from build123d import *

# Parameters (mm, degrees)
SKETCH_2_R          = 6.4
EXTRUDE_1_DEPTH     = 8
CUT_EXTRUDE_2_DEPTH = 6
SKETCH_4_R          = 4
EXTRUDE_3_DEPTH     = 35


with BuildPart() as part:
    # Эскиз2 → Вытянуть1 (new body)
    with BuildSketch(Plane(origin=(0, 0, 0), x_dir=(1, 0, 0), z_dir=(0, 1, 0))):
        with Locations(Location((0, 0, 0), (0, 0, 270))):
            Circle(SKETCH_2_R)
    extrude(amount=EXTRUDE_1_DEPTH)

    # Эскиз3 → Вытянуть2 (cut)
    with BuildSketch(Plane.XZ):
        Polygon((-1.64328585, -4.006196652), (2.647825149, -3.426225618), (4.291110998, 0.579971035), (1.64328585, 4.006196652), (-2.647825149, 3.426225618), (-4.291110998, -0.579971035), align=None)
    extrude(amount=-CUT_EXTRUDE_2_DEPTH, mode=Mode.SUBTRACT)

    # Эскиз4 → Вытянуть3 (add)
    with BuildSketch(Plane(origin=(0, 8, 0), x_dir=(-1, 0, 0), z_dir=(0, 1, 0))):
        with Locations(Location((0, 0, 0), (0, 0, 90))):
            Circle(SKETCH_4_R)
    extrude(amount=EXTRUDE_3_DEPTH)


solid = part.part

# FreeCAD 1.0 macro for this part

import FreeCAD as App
import Part
import Sketcher
Q = App.Units.Quantity

doc = App.newDocument("Part")
body = doc.addObject("PartDesign::Body", "Body")

# Sketch on XZ plane
sketch1 = body.newObject("Sketcher::SketchObject", "Sketch")
sketch1.AttachmentSupport = (doc.getObject("XZ_Plane"), [""])
sketch1.MapMode = "FlatFace"
sketch1.addGeometry(Part.Circle(App.Vector(0, 0, 0), App.Vector(0, 0, 1), 6), False)
sketch1.addConstraint([
    Sketcher.Constraint("Coincident", 0, 3, -1, 1),
    Sketcher.Constraint("Diameter", 0, Q("12.8 mm")),
])
pad1 = body.newObject("PartDesign::Pad", "Pad")
pad1.Profile = sketch1
pad1.Length = 8
pad1.Reversed = True

# Sketch on XZ plane
sketch2 = body.newObject("Sketcher::SketchObject", "Sketch001")
sketch2.AttachmentSupport = (doc.getObject("XZ_Plane"), [""])
sketch2.MapMode = "FlatFace"
sketch2.addGeometry([
    Part.LineSegment(App.Vector(-1.6, -4, 0), App.Vector(2.6, -3.4, 0)),  # 0
    Part.LineSegment(App.Vector(2.6, -3.4, 0), App.Vector(4.3, 0.6, 0)),  # 1
    Part.LineSegment(App.Vector(4.3, 0.6, 0), App.Vector(1.6, 4, 0)),  # 2
    Part.LineSegment(App.Vector(1.6, 4, 0), App.Vector(-2.6, 3.4, 0)),  # 3
    Part.LineSegment(App.Vector(-2.6, 3.4, 0), App.Vector(-4.3, -0.6, 0)),  # 4
    Part.LineSegment(App.Vector(-4.3, -0.6, 0), App.Vector(-1.6, -4, 0)),  # 5
], False)
sketch2.addConstraint([
    Sketcher.Constraint("Coincident", 0, 2, 1, 1),
    Sketcher.Constraint("Coincident", 1, 2, 2, 1),
    Sketcher.Constraint("Coincident", 2, 2, 3, 1),
    Sketcher.Constraint("Coincident", 3, 2, 4, 1),
    Sketcher.Constraint("Coincident", 4, 2, 5, 1),
    Sketcher.Constraint("Coincident", 5, 2, 0, 1),
    Sketcher.Constraint("Symmetric", 0, 2, 3, 2, -1, 1),
    Sketcher.Constraint("Symmetric", 1, 2, 4, 2, -1, 1),
    Sketcher.Constraint("Symmetric", 2, 2, 5, 2, -1, 1),
    Sketcher.Constraint("Equal", 0, 1),
    Sketcher.Constraint("Equal", 1, 2),
    Sketcher.Constraint("DistanceX", -1, 1, 1, 2, Q("4.291111 mm")),
    Sketcher.Constraint("DistanceY", -1, 1, 1, 2, Q("0.579971 mm")),
    Sketcher.Constraint("DistanceX", 2, 2, 0, 2, Q("1.004539 mm")),
    Sketcher.Constraint("DistanceX", 3, 2, 2, 2, Q("4.291111 mm")),
])
pocket1 = body.newObject("PartDesign::Pocket", "Pocket")
pocket1.Profile = sketch2
pocket1.Length = 6

# Sketch on XZ plane
sketch3 = body.newObject("Sketcher::SketchObject", "Sketch002")
sketch3.AttachmentSupport = (doc.getObject("XZ_Plane"), [""])
sketch3.MapMode = "FlatFace"
sketch3.AttachmentOffset = App.Placement(App.Vector(0, 0, -8), App.Rotation())
sketch3.addGeometry(Part.Circle(App.Vector(0, 0, 0), App.Vector(0, 0, 1), 4), False)
sketch3.addConstraint([
    Sketcher.Constraint("Coincident", 0, 3, -1, 1),
    Sketcher.Constraint("Diameter", 0, Q("8 mm")),
])
pad2 = body.newObject("PartDesign::Pad", "Pad001")
pad2.Profile = sketch3
pad2.Length = 35
pad2.Reversed = True

doc.recompute()
